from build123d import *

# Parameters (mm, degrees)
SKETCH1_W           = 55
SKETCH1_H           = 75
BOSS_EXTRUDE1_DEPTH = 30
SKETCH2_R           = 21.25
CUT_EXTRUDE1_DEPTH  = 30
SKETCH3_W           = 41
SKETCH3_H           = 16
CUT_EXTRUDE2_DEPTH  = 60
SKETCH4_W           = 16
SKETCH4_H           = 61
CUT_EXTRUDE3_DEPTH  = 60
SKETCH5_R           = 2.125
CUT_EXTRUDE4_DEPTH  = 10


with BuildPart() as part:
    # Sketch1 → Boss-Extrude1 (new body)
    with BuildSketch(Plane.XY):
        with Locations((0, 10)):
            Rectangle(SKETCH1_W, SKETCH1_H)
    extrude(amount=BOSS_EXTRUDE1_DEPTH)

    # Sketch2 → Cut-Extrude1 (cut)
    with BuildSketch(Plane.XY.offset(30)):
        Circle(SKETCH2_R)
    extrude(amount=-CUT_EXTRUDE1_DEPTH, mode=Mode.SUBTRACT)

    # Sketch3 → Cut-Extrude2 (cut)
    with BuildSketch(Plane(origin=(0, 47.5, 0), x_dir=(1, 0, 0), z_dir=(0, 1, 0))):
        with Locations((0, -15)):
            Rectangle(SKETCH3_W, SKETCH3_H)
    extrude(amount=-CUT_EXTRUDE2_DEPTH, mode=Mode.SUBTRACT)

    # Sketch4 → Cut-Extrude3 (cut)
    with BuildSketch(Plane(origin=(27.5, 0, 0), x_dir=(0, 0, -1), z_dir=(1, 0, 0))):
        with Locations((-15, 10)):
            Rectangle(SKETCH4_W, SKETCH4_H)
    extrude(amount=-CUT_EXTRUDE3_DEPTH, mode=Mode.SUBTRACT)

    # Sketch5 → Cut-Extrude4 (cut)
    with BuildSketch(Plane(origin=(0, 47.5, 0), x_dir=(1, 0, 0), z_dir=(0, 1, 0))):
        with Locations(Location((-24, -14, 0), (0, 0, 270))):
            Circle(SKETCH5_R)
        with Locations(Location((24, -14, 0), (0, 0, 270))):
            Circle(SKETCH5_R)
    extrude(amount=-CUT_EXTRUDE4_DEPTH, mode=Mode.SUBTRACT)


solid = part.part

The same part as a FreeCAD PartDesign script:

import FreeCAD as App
import Part
import Sketcher

V = App.Vector
Q = App.Units.Quantity

doc = App.newDocument("Part")
params = doc.addObject("Spreadsheet::Sheet", "Params")
for row, (alias, value) in enumerate([
    ("sketch1_width", "55 mm"),
    ("sketch1_height", "75 mm"),
    ("pad1_length", "30 mm"),
    ("sketch2_diameter", "42.5 mm"),
    ("pocket1_length", "30 mm"),
    ("sketch3_width", "41 mm"),
    ("sketch3_height", "16 mm"),
    ("pocket2_length", "60 mm"),
    ("sketch4_width", "61 mm"),
    ("sketch4_height", "16 mm"),
    ("pocket3_length", "60 mm"),
    ("sketch5_diameter", "4.25 mm"),
    ("pocket4_length", "10 mm"),
], start=1):
    params.set(f"A{row}", alias)
    params.set(f"B{row}", "=" + value)
    params.setAlias(f"B{row}", alias)

body = doc.addObject("PartDesign::Body", "Body")

# Sketch on XY plane
sketch1 = body.newObject("Sketcher::SketchObject", "Sketch")
sketch1.AttachmentSupport = (doc.getObject("XY_Plane"), [""])
sketch1.MapMode = "FlatFace"
sketch1.addGeometry(Part.LineSegment(V(-28, 48, 0), V(-28, -28, 0)), False)
sketch1.addGeometry(Part.LineSegment(V(-28, -28, 0), V(28, -28, 0)), False)
sketch1.addGeometry(Part.LineSegment(V(28, -28, 0), V(28, 48, 0)), False)
sketch1.addGeometry(Part.LineSegment(V(28, 48, 0), V(-28, 48, 0)), False)
sketch1.addConstraint(Sketcher.Constraint("Coincident", 0, 2, 1, 1))
sketch1.addConstraint(Sketcher.Constraint("Coincident", 1, 2, 2, 1))
sketch1.addConstraint(Sketcher.Constraint("Coincident", 2, 2, 3, 1))
sketch1.addConstraint(Sketcher.Constraint("Coincident", 3, 2, 0, 1))
sketch1.addConstraint(Sketcher.Constraint("Vertical", 0))
sketch1.addConstraint(Sketcher.Constraint("Horizontal", 1))
sketch1.addConstraint(Sketcher.Constraint("Vertical", 2))
sketch1.addConstraint(Sketcher.Constraint("Horizontal", 3))
sketch1.addConstraint(Sketcher.Constraint("DistanceX", 1, 1, 1, 2, Q("55 mm")))
sketch1.addConstraint(Sketcher.Constraint("DistanceY", 0, 2, 0, 1, Q("75 mm")))
sketch1.addConstraint(Sketcher.Constraint("DistanceX", 0, 2, -1, 1, Q("27.5 mm")))
sketch1.addConstraint(Sketcher.Constraint("DistanceY", 0, 2, -1, 1, Q("27.5 mm")))
sketch1.setExpression("Constraints[8]", "Params.sketch1_width")
sketch1.setExpression("Constraints[9]", "Params.sketch1_height")
pad1 = body.newObject("PartDesign::Pad", "Pad")
pad1.Profile = sketch1
pad1.setExpression("Length", "Params.pad1_length")

# Sketch on XY plane
sketch2 = body.newObject("Sketcher::SketchObject", "Sketch001")
sketch2.AttachmentSupport = (doc.getObject("XY_Plane"), [""])
sketch2.MapMode = "FlatFace"
sketch2.AttachmentOffset = App.Placement(V(0, 0, 30), App.Rotation())
sketch2.addGeometry(Part.Circle(V(0, 0, 0), V(0, 0, 1), 21), False)
sketch2.addConstraint(Sketcher.Constraint("Coincident", 0, 3, -1, 1))
sketch2.addConstraint(Sketcher.Constraint("Diameter", 0, Q("42.5 mm")))
sketch2.setExpression("Constraints[1]", "Params.sketch2_diameter")
pocket1 = body.newObject("PartDesign::Pocket", "Pocket")
pocket1.Profile = sketch2
pocket1.setExpression("Length", "Params.pocket1_length")

# Sketch on XZ plane
sketch3 = body.newObject("Sketcher::SketchObject", "Sketch002")
sketch3.AttachmentSupport = (doc.getObject("XZ_Plane"), [""])
sketch3.MapMode = "FlatFace"
sketch3.AttachmentOffset = App.Placement(V(0, 0, -47.5), App.Rotation())
sketch3.addGeometry(Part.LineSegment(V(-20, 7, 0), V(-20, 23, 0)), False)
sketch3.addGeometry(Part.LineSegment(V(-20, 23, 0), V(20, 23, 0)), False)
sketch3.addGeometry(Part.LineSegment(V(20, 23, 0), V(20, 7, 0)), False)
sketch3.addGeometry(Part.LineSegment(V(20, 7, 0), V(-20, 7, 0)), False)
sketch3.addConstraint(Sketcher.Constraint("Coincident", 0, 2, 1, 1))
sketch3.addConstraint(Sketcher.Constraint("Coincident", 1, 2, 2, 1))
sketch3.addConstraint(Sketcher.Constraint("Coincident", 2, 2, 3, 1))
sketch3.addConstraint(Sketcher.Constraint("Coincident", 3, 2, 0, 1))
sketch3.addConstraint(Sketcher.Constraint("Vertical", 0))
sketch3.addConstraint(Sketcher.Constraint("Horizontal", 1))
sketch3.addConstraint(Sketcher.Constraint("Vertical", 2))
sketch3.addConstraint(Sketcher.Constraint("Horizontal", 3))
sketch3.addConstraint(Sketcher.Constraint("DistanceX", 1, 1, 1, 2, Q("41 mm")))
sketch3.addConstraint(Sketcher.Constraint("DistanceY", 0, 1, 0, 2, Q("16 mm")))
sketch3.addConstraint(Sketcher.Constraint("DistanceY", -1, 1, 0, 2, Q("23 mm")))
sketch3.addConstraint(Sketcher.Constraint("DistanceX", 0, 2, -1, 1, Q("20.5 mm")))
sketch3.setExpression("Constraints[8]", "Params.sketch3_width")
sketch3.setExpression("Constraints[9]", "Params.sketch3_height")
pocket2 = body.newObject("PartDesign::Pocket", "Pocket001")
pocket2.Profile = sketch3
pocket2.setExpression("Length", "Params.pocket2_length")
pocket2.Reversed = True

# Sketch on YZ plane
sketch4 = body.newObject("Sketcher::SketchObject", "Sketch003")
sketch4.AttachmentSupport = (doc.getObject("YZ_Plane"), [""])
sketch4.MapMode = "FlatFace"
sketch4.AttachmentOffset = App.Placement(V(0, 0, 27.5), App.Rotation())
sketch4.addGeometry(Part.LineSegment(V(40, 23, 0), V(-20, 23, 0)), False)
sketch4.addGeometry(Part.LineSegment(V(-20, 23, 0), V(-20, 7, 0)), False)
sketch4.addGeometry(Part.LineSegment(V(-20, 7, 0), V(40, 7, 0)), False)
sketch4.addGeometry(Part.LineSegment(V(40, 7, 0), V(40, 23, 0)), False)
sketch4.addConstraint(Sketcher.Constraint("Coincident", 0, 2, 1, 1))
sketch4.addConstraint(Sketcher.Constraint("Coincident", 1, 2, 2, 1))
sketch4.addConstraint(Sketcher.Constraint("Coincident", 2, 2, 3, 1))
sketch4.addConstraint(Sketcher.Constraint("Coincident", 3, 2, 0, 1))
sketch4.addConstraint(Sketcher.Constraint("Horizontal", 0))
sketch4.addConstraint(Sketcher.Constraint("Vertical", 1))
sketch4.addConstraint(Sketcher.Constraint("Horizontal", 2))
sketch4.addConstraint(Sketcher.Constraint("Vertical", 3))
sketch4.addConstraint(Sketcher.Constraint("DistanceX", 0, 2, 0, 1, Q("61 mm")))
sketch4.addConstraint(Sketcher.Constraint("DistanceY", 1, 2, 1, 1, Q("16 mm")))
sketch4.addConstraint(Sketcher.Constraint("DistanceY", -1, 1, 0, 2, Q("23 mm")))
sketch4.addConstraint(Sketcher.Constraint("DistanceX", 0, 2, -1, 1, Q("20.5 mm")))
sketch4.setExpression("Constraints[8]", "Params.sketch4_width")
sketch4.setExpression("Constraints[9]", "Params.sketch4_height")
pocket3 = body.newObject("PartDesign::Pocket", "Pocket002")
pocket3.Profile = sketch4
pocket3.setExpression("Length", "Params.pocket3_length")

# Sketch on XZ plane
sketch5 = body.newObject("Sketcher::SketchObject", "Sketch004")
sketch5.AttachmentSupport = (doc.getObject("XZ_Plane"), [""])
sketch5.MapMode = "FlatFace"
sketch5.AttachmentOffset = App.Placement(V(0, 0, -47.5), App.Rotation())
sketch5.addGeometry(Part.Circle(V(-24, 14, 0), V(0, 0, 1), 2.1), False)
sketch5.addGeometry(Part.Circle(V(24, 14, 0), V(0, 0, 1), 2.1), False)
sketch5.addConstraint(Sketcher.Constraint("Equal", 0, 1))
sketch5.addConstraint(Sketcher.Constraint("Symmetric", 0, 3, 1, 3, -2))
sketch5.addConstraint(Sketcher.Constraint("Diameter", 0, Q("4.25 mm")))
sketch5.addConstraint(Sketcher.Constraint("DistanceX", 0, 3, -1, 1, Q("24 mm")))
sketch5.addConstraint(Sketcher.Constraint("DistanceY", -1, 1, 0, 3, Q("14 mm")))
sketch5.setExpression("Constraints[2]", "Params.sketch5_diameter")
pocket4 = body.newObject("PartDesign::Pocket", "Pocket003")
pocket4.Profile = sketch5
pocket4.setExpression("Length", "Params.pocket4_length")
pocket4.Reversed = True

doc.recompute()
